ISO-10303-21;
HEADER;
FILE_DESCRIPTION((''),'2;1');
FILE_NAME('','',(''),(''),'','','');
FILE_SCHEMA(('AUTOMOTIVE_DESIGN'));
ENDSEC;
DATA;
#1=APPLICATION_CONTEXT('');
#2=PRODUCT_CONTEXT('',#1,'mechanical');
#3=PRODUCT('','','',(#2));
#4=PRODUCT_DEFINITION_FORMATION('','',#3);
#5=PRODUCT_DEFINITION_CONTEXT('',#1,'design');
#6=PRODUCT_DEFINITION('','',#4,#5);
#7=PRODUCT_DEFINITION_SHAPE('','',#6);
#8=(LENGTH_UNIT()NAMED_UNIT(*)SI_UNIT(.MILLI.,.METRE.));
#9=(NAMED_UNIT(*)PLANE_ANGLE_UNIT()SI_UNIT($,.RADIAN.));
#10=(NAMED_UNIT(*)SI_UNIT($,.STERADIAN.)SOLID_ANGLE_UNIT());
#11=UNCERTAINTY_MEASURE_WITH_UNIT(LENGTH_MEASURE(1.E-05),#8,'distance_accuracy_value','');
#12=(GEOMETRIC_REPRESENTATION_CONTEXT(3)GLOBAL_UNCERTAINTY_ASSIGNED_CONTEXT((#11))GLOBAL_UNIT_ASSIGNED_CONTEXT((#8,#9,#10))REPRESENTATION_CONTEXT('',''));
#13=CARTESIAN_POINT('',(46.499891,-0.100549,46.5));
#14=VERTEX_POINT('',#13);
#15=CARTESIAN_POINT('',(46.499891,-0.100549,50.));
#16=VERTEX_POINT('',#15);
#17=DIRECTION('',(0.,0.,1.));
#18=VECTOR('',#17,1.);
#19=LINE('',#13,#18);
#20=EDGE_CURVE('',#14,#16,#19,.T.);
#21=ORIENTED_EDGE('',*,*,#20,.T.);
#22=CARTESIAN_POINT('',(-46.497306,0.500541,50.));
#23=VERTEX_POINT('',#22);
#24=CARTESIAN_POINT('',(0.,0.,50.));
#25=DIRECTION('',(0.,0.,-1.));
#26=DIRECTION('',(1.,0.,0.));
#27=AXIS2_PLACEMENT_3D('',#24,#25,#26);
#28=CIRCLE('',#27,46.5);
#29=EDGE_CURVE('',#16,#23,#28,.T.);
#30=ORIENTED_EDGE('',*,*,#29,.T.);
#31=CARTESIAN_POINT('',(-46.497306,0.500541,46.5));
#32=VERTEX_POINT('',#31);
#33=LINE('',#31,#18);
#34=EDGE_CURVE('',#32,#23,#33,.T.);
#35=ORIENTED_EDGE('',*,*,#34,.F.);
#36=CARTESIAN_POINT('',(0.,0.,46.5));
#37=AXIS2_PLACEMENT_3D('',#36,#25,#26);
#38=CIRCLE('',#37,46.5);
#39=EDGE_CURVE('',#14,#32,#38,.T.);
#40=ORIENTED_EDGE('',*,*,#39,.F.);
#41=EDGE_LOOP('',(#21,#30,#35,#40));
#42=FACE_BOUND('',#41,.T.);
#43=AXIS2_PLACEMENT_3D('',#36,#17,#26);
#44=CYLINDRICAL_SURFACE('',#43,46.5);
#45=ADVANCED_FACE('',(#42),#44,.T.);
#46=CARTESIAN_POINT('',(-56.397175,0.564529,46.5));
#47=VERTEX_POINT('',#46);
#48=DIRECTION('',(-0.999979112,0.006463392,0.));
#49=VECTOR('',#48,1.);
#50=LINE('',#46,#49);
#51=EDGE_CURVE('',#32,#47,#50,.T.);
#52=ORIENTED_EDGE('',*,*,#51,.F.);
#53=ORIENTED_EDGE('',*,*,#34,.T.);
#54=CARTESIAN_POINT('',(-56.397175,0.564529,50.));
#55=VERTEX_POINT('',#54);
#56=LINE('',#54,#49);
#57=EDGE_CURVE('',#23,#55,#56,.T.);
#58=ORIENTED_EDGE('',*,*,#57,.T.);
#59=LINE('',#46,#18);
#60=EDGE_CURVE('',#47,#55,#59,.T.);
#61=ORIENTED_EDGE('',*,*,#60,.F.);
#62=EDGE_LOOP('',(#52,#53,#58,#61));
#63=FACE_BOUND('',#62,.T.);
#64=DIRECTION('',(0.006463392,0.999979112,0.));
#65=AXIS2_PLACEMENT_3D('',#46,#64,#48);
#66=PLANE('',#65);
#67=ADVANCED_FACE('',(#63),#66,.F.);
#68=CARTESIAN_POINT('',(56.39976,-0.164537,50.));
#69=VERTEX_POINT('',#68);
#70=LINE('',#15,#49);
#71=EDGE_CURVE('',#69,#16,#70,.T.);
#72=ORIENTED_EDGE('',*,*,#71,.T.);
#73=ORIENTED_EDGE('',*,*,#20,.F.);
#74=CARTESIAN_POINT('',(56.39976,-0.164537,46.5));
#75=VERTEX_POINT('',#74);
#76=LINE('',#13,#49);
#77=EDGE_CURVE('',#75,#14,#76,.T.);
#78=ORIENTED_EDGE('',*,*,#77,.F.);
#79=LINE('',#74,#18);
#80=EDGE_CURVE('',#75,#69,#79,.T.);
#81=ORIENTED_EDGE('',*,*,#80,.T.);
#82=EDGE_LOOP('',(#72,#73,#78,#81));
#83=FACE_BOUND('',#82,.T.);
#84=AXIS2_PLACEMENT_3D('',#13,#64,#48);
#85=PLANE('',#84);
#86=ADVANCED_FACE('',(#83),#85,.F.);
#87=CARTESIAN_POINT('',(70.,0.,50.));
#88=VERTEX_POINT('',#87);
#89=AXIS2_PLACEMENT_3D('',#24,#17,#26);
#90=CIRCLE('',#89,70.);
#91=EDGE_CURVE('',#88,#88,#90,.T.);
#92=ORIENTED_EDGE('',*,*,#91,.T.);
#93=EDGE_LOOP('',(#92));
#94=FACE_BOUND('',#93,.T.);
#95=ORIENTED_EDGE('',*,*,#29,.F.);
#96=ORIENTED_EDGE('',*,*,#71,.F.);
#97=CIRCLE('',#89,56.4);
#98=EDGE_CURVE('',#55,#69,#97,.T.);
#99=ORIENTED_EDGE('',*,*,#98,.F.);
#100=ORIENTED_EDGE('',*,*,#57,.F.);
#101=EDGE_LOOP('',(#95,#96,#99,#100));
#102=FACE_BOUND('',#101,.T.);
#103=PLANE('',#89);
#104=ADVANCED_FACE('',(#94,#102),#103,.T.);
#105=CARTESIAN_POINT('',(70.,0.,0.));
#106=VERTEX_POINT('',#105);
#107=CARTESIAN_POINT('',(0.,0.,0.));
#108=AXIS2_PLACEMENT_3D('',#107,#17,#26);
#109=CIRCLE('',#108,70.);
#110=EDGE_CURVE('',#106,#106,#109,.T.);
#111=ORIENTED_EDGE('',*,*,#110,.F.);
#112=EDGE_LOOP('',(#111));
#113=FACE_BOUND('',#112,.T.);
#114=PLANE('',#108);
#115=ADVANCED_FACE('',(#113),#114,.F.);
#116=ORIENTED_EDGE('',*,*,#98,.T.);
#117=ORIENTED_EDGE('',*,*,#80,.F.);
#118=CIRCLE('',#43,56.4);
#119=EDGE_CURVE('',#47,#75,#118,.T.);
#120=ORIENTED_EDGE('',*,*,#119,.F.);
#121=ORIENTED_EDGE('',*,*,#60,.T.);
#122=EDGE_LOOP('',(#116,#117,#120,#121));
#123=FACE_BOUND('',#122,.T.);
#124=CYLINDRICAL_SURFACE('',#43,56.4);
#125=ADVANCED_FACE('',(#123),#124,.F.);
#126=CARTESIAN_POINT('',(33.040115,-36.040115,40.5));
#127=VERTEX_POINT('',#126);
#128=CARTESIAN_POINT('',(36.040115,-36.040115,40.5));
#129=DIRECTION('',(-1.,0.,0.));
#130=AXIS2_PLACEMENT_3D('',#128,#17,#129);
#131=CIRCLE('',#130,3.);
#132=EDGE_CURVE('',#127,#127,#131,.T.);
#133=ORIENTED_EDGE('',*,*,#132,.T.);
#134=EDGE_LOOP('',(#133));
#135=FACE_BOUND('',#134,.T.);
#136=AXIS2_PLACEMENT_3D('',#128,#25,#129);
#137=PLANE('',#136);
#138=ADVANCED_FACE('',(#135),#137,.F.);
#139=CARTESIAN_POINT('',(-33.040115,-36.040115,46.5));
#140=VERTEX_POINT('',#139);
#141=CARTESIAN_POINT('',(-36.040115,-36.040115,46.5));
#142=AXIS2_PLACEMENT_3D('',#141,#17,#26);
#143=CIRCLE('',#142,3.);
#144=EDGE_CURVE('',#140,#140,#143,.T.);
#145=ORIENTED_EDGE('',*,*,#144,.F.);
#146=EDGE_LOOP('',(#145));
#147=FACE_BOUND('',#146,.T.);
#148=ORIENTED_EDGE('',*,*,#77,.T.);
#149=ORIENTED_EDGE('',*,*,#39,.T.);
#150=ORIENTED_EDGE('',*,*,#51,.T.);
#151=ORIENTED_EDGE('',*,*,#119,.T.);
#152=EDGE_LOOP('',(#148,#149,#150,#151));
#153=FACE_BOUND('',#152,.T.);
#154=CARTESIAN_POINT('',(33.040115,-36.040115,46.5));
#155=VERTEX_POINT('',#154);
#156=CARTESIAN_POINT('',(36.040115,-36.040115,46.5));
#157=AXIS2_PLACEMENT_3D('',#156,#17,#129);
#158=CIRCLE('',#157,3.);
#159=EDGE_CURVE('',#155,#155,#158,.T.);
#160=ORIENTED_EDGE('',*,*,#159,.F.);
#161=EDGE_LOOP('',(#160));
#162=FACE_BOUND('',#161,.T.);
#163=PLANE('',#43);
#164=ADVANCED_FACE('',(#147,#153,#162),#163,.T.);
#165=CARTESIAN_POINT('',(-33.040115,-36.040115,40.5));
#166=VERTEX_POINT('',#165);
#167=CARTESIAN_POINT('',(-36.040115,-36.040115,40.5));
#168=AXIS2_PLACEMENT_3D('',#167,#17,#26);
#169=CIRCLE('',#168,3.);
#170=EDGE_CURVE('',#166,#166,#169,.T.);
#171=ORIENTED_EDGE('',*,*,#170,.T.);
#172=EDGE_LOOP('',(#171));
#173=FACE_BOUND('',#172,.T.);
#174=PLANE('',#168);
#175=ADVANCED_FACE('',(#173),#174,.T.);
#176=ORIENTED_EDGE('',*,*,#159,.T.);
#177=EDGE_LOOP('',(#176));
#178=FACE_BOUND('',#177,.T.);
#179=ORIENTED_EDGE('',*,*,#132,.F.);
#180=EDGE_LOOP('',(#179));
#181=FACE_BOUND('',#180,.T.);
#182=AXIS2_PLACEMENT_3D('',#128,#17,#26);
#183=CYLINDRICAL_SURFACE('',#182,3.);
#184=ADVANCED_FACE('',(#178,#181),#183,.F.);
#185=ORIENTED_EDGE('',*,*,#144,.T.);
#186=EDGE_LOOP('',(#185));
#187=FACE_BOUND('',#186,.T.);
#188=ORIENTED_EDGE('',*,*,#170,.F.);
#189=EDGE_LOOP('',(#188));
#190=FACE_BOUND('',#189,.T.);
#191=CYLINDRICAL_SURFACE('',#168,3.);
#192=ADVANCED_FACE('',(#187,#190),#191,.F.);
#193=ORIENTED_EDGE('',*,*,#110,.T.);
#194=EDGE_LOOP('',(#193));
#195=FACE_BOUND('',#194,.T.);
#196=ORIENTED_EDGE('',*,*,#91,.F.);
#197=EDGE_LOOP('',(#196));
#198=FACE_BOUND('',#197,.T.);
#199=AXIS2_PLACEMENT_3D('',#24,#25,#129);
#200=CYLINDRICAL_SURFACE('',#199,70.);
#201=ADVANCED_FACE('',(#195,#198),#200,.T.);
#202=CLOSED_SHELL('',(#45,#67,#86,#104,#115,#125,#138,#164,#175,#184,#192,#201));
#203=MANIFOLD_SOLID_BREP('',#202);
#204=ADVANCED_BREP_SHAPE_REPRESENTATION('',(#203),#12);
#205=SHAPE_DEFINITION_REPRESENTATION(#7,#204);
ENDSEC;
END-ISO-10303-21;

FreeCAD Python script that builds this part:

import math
import FreeCAD as App
import Part
import Sketcher
from FreeCAD import Vector

doc = App.newDocument("Part")
params = doc.addObject("Spreadsheet::Sheet", "Params")
for row, (alias, value) in enumerate([
    ("sketch1_diameter", "140 mm"),
    ("pad1_length", "50 mm"),
    ("sketch2_radius", "56.4 mm"),
    ("sketch2_radius2", "46.5 mm"),
    ("pocket1_length", "3.5 mm"),
    ("sketch3_diameter", "6 mm"),
    ("pocket2_length", "6 mm"),
], start=1):
    params.set(f"A{row}", alias)
    params.set(f"B{row}", "=" + value)
    params.setAlias(f"B{row}", alias)

body = doc.addObject("PartDesign::Body", "Body")

sketch1 = body.newObject("Sketcher::SketchObject", "Sketch")
sketch1.AttachmentSupport = (doc.getObject("XY_Plane"), [""])
sketch1.MapMode = "FlatFace"
sketch1.addGeometry(Part.Circle(Vector(0, 0, 0), Vector(0, 0, 1), 70), False)
sketch1.addConstraint([
    Sketcher.Constraint("Coincident", 0, 3, -1, 1),
    Sketcher.Constraint("Diameter", 0, 140.0),
])
sketch1.setExpression("Constraints[1]", "Params.sketch1_diameter")
pad1 = body.newObject("PartDesign::Pad", "Pad")
pad1.Profile = sketch1
pad1.setExpression("Length", "Params.pad1_length")

sketch2 = body.newObject("Sketcher::SketchObject", "Sketch001")
sketch2.AttachmentSupport = (doc.getObject("XY_Plane"), [""])
sketch2.MapMode = "FlatFace"
sketch2.AttachmentOffset = App.Placement(Vector(0, 0, 50), App.Rotation())
sketch2.addGeometry([
    Part.LineSegment(Vector(-46, 1, 0), Vector(-56, 1, 0)),
    Part.ArcOfCircle(Part.Circle(Vector(0, 0, 0), Vector(0, 0, 1), 56), math.radians(179), math.radians(360)),
    Part.LineSegment(Vector(56, 0, 0), Vector(46, 0, 0)),
    Part.ArcOfCircle(Part.Circle(Vector(0, 0, 0), Vector(0, 0, 1), 46), math.radians(179), math.radians(360)),
], False)
sketch2.addConstraint([
    Sketcher.Constraint("Coincident", 0, 2, 1, 1),
    Sketcher.Constraint("Coincident", 1, 2, 2, 1),
    Sketcher.Constraint("Coincident", 2, 2, 3, 2),
    Sketcher.Constraint("Coincident", 3, 1, 0, 1),
    Sketcher.Constraint("Coincident", 1, 3, -1, 1),
    Sketcher.Constraint("Coincident", 3, 3, -1, 1),
    Sketcher.Constraint("Parallel", 0, 2),
    Sketcher.Constraint("Equal", 0, 2),
    Sketcher.Constraint("Radius", 1, 56.4),
    Sketcher.Constraint("Radius", 3, 46.5),
    Sketcher.Constraint("DistanceY", -1, 1, 0, 2, 0.564529),
    Sketcher.Constraint("DistanceY", 2, 2, -1, 1, 0.100549),
])
sketch2.setExpression("Constraints[8]", "Params.sketch2_radius")
sketch2.setExpression("Constraints[9]", "Params.sketch2_radius2")
pocket1 = body.newObject("PartDesign::Pocket", "Pocket")
pocket1.Profile = sketch2
pocket1.setExpression("Length", "Params.pocket1_length")

sketch3 = body.newObject("Sketcher::SketchObject", "Sketch002")
sketch3.AttachmentSupport = (doc.getObject("XY_Plane"), [""])
sketch3.MapMode = "FlatFace"
sketch3.AttachmentOffset = App.Placement(Vector(0, 0, 46.5), App.Rotation())
sketch3.addGeometry([
    Part.Circle(Vector(-36, -36, 0), Vector(0, 0, 1), 3),
    Part.Circle(Vector(36, -36, 0), Vector(0, 0, 1), 3),
], False)
sketch3.addConstraint([
    Sketcher.Constraint("Equal", 0, 1),
    Sketcher.Constraint("Symmetric", 0, 3, 1, 3, -2),
    Sketcher.Constraint("Diameter", 0, 6.0),
    Sketcher.Constraint("DistanceX", 0, 3, 1, 3, 72.080231),
    Sketcher.Constraint("DistanceY", 0, 3, -1, 1, 36.040115),
])
sketch3.setExpression("Constraints[2]", "Params.sketch3_diameter")
pocket2 = body.newObject("PartDesign::Pocket", "Pocket001")
pocket2.Profile = sketch3
pocket2.setExpression("Length", "Params.pocket2_length")

doc.recompute()
